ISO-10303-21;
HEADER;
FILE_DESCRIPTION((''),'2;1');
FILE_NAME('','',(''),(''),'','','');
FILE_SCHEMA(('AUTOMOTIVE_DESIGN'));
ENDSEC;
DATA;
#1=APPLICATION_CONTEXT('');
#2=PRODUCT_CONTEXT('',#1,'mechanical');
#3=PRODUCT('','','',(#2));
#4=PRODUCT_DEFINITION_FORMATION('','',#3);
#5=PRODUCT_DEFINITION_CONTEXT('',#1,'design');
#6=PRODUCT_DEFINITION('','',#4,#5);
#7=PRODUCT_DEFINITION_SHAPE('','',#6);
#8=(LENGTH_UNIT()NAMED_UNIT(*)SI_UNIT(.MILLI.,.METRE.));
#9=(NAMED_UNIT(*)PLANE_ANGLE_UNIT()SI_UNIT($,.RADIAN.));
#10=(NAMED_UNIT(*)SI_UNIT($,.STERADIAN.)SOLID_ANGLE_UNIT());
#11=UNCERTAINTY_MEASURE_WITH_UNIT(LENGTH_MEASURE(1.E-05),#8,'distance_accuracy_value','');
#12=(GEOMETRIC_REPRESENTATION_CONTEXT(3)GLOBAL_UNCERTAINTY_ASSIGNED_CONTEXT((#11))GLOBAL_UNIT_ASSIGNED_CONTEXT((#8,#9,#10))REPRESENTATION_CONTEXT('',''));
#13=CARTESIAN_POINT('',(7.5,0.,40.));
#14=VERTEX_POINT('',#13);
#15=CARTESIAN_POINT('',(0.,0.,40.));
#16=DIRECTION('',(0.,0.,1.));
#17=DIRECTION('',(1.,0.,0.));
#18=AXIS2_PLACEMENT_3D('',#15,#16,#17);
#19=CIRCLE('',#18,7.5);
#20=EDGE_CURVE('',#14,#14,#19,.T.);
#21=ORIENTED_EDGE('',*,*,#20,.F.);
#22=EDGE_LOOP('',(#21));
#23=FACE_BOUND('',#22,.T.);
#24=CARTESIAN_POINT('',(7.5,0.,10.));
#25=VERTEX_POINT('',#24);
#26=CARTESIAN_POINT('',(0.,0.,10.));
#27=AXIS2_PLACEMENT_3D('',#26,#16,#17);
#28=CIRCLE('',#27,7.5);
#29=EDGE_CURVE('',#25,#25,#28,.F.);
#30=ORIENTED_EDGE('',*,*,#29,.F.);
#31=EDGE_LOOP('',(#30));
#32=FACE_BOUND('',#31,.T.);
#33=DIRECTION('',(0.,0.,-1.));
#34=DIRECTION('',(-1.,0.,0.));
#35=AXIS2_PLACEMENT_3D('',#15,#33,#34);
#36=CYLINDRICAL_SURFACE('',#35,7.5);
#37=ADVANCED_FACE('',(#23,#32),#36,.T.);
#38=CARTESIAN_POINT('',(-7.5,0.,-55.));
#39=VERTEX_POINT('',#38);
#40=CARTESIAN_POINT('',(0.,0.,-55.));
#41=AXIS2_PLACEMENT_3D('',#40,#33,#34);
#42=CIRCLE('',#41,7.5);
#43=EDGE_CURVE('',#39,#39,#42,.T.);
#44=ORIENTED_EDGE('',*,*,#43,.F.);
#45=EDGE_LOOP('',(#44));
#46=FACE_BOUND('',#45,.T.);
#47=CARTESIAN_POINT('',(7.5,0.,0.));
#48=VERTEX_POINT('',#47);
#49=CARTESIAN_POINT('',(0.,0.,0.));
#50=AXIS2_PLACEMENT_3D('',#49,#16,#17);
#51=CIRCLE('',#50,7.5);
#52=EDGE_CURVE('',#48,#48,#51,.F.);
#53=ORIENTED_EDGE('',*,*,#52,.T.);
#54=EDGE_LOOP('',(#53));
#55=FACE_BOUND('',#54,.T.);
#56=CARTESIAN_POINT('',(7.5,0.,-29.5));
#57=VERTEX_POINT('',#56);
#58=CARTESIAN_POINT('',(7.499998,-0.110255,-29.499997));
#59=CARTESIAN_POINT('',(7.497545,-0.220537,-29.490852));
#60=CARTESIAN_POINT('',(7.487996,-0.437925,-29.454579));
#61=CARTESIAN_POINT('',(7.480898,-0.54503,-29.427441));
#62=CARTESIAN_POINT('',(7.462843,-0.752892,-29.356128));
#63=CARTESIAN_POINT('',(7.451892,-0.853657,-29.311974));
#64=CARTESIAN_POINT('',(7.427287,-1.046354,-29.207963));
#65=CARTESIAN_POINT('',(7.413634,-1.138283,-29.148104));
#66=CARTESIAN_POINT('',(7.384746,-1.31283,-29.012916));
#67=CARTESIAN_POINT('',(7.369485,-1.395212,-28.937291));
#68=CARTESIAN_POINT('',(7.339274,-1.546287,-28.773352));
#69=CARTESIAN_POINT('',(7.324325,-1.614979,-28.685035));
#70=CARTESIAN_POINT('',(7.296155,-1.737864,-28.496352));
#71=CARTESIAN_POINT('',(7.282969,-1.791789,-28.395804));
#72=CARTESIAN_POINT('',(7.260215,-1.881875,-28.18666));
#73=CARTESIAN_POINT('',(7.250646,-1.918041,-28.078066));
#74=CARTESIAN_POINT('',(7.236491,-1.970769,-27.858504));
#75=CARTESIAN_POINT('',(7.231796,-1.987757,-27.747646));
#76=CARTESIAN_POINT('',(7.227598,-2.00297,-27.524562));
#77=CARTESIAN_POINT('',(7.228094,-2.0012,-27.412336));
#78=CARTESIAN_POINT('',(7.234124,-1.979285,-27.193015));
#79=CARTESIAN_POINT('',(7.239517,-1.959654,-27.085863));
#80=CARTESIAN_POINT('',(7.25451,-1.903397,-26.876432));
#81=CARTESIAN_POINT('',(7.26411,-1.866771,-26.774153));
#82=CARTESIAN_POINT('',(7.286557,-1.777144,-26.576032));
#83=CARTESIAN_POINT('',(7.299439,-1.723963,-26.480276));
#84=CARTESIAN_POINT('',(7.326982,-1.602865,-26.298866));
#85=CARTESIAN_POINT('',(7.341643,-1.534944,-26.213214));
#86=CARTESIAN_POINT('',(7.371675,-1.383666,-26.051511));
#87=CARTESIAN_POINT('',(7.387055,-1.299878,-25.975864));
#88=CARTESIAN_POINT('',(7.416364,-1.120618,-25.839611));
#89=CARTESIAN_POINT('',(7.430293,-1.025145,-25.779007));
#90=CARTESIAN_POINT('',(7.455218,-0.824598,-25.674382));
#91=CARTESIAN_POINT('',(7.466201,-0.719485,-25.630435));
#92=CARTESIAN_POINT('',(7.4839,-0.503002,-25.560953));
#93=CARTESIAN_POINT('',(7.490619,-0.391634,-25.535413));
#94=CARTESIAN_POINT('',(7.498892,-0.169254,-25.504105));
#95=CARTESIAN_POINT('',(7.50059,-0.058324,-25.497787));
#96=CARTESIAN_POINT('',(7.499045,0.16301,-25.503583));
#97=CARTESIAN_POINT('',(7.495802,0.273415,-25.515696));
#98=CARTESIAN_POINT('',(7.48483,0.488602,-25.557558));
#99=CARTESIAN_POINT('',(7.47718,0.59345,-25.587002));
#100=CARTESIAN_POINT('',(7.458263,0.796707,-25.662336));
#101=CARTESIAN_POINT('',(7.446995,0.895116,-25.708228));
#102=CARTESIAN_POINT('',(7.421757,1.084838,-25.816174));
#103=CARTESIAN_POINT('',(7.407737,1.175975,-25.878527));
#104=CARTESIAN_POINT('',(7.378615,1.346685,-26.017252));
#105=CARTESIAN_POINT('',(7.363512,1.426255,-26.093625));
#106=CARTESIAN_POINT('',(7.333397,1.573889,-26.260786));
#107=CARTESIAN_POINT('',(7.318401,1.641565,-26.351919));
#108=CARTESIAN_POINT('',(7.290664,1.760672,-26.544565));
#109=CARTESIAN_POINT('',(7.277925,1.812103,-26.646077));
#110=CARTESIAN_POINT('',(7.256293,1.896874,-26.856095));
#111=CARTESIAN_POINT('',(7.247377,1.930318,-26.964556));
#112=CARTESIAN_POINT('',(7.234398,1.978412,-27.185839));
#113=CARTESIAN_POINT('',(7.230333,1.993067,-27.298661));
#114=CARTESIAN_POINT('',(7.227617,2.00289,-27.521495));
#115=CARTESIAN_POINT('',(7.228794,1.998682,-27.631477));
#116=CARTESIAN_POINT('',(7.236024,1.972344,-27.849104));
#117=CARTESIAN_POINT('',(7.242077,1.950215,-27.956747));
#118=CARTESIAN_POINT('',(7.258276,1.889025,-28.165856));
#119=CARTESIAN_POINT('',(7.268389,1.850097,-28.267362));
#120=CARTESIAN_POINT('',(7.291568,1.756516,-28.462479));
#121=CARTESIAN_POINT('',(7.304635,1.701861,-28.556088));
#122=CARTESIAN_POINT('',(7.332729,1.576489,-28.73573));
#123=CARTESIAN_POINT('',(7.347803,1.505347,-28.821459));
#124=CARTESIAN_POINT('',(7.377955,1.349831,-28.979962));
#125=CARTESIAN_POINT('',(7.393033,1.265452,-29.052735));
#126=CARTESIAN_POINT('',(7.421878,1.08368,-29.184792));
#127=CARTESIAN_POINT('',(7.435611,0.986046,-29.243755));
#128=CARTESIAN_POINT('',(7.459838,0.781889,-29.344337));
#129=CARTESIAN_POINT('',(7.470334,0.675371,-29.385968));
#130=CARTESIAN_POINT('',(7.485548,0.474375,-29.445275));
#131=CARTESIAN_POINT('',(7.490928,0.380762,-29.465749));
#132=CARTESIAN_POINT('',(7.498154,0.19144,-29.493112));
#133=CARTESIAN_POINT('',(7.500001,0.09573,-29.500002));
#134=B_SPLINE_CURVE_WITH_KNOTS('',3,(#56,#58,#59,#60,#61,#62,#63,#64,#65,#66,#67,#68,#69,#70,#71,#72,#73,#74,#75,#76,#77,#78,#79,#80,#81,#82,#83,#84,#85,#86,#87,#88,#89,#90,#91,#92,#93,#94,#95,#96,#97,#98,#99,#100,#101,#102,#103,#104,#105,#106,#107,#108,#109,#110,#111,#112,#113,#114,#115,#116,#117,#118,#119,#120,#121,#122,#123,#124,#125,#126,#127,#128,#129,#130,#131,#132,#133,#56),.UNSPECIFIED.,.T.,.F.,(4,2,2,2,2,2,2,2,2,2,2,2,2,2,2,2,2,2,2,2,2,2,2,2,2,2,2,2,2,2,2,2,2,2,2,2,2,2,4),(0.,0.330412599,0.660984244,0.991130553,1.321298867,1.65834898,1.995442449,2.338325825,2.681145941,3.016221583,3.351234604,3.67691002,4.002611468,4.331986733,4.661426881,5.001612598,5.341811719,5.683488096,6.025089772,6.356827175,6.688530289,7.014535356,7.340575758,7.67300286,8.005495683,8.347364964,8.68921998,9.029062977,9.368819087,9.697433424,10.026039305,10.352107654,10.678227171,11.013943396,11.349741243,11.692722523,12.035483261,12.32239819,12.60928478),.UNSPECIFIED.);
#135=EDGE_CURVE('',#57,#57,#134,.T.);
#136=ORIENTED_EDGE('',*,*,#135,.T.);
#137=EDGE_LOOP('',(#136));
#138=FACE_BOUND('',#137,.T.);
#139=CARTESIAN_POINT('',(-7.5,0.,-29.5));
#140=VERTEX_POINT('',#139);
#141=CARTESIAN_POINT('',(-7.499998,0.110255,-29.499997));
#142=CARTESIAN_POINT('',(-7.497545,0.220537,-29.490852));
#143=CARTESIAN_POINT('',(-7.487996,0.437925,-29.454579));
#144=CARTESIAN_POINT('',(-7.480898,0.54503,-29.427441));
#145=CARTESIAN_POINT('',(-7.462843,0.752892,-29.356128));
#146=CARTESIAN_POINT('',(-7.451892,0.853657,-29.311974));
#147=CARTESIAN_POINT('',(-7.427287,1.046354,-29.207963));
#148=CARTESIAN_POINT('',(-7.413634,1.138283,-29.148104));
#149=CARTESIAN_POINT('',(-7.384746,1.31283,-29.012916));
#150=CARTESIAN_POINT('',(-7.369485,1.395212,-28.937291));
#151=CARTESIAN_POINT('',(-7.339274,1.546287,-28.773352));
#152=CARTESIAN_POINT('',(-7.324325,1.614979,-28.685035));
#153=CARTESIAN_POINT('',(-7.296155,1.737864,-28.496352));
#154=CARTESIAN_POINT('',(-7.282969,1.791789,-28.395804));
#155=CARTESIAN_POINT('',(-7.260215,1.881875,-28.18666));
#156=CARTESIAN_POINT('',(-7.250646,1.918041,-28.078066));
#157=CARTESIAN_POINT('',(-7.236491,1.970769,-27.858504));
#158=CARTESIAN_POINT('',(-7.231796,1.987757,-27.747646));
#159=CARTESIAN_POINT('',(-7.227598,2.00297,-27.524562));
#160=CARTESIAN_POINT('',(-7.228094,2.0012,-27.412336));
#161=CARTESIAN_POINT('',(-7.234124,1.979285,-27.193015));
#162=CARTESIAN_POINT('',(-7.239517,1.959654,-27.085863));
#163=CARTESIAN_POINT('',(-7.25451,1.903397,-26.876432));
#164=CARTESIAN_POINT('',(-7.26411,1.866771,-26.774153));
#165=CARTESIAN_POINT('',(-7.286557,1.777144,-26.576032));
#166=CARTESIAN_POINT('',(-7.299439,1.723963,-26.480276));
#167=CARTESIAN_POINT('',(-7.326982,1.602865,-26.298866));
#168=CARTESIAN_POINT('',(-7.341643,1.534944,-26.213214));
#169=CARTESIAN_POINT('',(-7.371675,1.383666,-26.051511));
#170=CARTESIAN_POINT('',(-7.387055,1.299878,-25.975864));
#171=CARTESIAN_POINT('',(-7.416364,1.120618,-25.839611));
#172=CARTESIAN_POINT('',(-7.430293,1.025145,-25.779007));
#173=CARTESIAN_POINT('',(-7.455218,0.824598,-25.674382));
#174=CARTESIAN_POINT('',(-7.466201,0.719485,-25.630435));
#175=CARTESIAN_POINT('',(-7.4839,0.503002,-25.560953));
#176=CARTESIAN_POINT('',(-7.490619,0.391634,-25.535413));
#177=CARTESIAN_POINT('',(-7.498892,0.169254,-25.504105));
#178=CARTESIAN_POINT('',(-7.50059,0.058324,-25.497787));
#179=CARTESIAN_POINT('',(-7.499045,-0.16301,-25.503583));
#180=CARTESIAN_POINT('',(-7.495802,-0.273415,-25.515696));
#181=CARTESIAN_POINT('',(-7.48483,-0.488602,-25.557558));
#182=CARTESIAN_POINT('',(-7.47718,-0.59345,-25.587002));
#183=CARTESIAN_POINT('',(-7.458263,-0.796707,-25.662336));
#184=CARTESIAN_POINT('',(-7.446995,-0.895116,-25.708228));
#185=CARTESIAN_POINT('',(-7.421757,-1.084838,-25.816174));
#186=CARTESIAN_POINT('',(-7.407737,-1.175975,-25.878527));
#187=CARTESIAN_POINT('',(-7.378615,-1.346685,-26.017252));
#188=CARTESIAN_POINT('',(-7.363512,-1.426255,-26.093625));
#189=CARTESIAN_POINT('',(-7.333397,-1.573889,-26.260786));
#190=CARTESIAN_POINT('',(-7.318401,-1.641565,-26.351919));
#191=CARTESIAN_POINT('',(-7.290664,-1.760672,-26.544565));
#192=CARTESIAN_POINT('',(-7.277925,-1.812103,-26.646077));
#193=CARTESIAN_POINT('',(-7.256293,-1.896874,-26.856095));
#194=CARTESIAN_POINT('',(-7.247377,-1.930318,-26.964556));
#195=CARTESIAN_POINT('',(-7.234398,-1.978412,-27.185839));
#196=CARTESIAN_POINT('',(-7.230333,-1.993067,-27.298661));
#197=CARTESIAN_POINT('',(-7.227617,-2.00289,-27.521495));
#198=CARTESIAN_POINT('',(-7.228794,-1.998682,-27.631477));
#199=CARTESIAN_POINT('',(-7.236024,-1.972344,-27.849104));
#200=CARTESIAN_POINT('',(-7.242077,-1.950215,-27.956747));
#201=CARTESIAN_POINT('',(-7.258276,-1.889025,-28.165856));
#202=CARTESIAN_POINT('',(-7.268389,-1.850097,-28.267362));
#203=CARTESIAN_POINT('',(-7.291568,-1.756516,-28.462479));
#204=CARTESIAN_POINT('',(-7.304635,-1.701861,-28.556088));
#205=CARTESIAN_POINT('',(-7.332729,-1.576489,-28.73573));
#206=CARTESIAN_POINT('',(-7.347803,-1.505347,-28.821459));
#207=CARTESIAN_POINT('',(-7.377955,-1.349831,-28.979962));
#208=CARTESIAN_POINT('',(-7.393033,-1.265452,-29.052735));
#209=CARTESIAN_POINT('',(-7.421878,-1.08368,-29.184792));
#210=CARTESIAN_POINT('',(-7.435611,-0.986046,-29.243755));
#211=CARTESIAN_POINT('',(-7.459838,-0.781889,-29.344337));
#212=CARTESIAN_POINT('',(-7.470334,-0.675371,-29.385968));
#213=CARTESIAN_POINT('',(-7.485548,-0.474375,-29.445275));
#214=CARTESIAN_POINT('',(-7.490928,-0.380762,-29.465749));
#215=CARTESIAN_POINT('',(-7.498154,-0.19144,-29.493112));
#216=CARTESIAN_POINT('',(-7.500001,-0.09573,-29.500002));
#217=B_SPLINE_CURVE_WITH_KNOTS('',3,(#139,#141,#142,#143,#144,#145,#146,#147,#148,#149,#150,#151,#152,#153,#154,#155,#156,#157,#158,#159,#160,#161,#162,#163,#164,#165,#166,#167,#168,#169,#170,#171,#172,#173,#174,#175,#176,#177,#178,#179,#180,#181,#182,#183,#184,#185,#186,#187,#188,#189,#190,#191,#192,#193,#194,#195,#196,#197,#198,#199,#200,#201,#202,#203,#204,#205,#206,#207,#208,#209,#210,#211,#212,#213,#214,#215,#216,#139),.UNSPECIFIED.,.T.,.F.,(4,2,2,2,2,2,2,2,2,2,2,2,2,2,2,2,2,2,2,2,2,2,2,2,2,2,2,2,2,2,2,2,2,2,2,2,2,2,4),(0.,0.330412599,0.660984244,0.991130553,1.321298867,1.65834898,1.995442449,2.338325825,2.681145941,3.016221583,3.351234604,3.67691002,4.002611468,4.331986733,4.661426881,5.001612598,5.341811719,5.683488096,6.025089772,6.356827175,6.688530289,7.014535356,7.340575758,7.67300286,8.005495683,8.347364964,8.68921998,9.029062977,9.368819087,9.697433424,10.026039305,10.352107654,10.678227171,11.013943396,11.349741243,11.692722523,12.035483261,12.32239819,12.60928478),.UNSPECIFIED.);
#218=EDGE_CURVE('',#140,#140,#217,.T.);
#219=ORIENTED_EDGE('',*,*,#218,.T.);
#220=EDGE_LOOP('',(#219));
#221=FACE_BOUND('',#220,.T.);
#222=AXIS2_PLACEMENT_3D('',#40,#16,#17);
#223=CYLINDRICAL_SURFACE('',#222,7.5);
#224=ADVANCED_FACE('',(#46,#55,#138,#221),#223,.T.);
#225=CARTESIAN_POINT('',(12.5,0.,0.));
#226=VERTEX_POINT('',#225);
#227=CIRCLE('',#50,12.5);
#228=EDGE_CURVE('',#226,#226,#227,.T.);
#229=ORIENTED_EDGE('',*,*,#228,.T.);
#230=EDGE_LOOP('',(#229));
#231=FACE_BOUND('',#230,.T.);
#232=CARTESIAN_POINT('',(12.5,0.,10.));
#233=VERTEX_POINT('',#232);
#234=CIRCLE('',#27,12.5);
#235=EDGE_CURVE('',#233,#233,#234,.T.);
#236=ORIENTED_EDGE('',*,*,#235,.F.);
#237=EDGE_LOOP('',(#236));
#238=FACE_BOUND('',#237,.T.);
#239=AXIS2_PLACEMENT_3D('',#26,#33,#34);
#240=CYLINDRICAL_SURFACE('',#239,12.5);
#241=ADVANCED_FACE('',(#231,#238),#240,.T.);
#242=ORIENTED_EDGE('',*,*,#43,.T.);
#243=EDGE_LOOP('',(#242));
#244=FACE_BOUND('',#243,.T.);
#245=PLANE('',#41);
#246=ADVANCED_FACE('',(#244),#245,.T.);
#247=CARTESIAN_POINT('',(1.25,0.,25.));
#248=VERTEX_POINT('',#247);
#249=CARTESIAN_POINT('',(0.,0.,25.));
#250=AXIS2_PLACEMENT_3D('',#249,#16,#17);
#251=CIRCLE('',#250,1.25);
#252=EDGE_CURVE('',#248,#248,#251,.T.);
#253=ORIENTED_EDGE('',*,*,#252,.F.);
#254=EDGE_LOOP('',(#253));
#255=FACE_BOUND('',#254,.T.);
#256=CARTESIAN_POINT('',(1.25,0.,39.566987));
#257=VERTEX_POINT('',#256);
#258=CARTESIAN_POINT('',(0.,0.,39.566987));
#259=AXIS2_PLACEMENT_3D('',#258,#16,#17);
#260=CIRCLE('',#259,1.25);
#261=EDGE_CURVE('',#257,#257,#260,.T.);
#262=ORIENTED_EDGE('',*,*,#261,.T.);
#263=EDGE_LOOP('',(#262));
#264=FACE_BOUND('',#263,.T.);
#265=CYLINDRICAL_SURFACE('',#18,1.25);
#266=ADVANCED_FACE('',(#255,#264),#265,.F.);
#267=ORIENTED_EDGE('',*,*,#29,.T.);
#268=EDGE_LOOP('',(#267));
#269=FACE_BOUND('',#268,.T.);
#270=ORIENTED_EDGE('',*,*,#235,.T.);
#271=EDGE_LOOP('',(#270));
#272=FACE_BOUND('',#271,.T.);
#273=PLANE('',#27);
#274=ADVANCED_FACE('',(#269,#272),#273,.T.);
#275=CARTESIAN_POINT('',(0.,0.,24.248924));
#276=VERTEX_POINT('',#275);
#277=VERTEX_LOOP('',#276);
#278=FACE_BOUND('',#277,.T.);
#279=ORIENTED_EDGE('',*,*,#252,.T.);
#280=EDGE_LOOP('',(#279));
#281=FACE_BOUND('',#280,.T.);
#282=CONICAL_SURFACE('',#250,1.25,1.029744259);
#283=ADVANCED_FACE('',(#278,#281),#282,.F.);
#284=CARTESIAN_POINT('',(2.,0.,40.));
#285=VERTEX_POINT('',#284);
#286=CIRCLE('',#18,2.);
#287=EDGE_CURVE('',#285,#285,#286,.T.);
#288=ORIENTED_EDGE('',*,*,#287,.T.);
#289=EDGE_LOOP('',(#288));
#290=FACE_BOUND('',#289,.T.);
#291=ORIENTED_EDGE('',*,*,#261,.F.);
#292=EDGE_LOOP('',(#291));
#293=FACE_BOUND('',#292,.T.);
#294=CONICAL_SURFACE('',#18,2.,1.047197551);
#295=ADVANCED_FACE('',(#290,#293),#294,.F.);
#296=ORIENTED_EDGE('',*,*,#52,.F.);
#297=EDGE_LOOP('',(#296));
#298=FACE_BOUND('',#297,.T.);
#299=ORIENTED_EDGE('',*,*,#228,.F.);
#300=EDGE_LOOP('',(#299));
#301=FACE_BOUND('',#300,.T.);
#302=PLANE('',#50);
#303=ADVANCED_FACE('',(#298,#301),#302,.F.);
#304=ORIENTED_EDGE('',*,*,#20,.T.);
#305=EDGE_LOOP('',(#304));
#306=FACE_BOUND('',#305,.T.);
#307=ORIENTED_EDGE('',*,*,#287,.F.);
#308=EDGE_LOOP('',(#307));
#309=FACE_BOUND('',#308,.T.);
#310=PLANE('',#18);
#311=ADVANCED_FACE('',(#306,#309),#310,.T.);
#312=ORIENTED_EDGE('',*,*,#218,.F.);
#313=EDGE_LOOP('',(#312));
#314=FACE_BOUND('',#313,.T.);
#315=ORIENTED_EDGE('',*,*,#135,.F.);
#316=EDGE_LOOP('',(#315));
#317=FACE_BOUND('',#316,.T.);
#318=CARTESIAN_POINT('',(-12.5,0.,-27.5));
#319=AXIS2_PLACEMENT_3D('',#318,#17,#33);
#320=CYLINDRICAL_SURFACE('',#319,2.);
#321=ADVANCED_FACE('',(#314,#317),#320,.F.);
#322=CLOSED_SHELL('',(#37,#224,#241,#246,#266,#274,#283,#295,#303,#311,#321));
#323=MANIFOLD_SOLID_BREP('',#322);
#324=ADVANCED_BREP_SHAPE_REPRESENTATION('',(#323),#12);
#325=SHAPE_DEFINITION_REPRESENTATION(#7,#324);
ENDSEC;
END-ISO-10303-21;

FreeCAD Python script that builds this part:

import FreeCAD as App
import Part
import Sketcher
from FreeCAD import Vector

doc = App.newDocument("Part")
body = doc.addObject("PartDesign::Body", "Body")

sketch1 = body.newObject("Sketcher::SketchObject", "Sketch")
sketch1.AttachmentSupport = (doc.getObject("XY_Plane"), [""])
sketch1.MapMode = "FlatFace"
sketch1.addGeometry(Part.Circle(Vector(0, 0, 0), Vector(0, 0, 1), 12.5), False)
sketch1.addConstraint([
    Sketcher.Constraint("Coincident", 0, 3, -1, 1),
    Sketcher.Constraint("Diameter", 0, 25.0),
])
pad1 = body.newObject("PartDesign::Pad", "Pad")
pad1.Profile = sketch1
pad1.Length = 10

sketch2 = body.newObject("Sketcher::SketchObject", "Sketch001")
sketch2.AttachmentSupport = (doc.getObject("XY_Plane"), [""])
sketch2.MapMode = "FlatFace"
sketch2.addGeometry(Part.Circle(Vector(0, 0, 0), Vector(0, 0, 1), 7.5), False)
sketch2.addConstraint([
    Sketcher.Constraint("Coincident", 0, 3, -1, 1),
    Sketcher.Constraint("Diameter", 0, 15.0),
])
pad2 = body.newObject("PartDesign::Pad", "Pad001")
pad2.Profile = sketch2
pad2.Length = 40

sketch3 = body.newObject("Sketcher::SketchObject", "Sketch002")
sketch3.AttachmentSupport = (doc.getObject("XY_Plane"), [""])
sketch3.MapMode = "FlatFace"
sketch3.AttachmentOffset = App.Placement(Vector(0, 0, -55), App.Rotation())
sketch3.addGeometry(Part.Circle(Vector(0, 0, 0), Vector(0, 0, 1), 7.5), False)
sketch3.addConstraint([
    Sketcher.Constraint("Coincident", 0, 3, -1, 1),
    Sketcher.Constraint("Diameter", 0, 15.0),
])
pad3 = body.newObject("PartDesign::Pad", "Pad002")
pad3.Profile = sketch3
pad3.Length = 55

sketch4 = body.newObject("Sketcher::SketchObject", "Sketch003")
sketch4.AttachmentSupport = (doc.getObject("XY_Plane"), [""])
sketch4.MapMode = "FlatFace"
sketch4.AttachmentOffset = App.Placement(Vector(0, 0, 40), App.Rotation())
sketch4.addGeometry(Part.Circle(Vector(0, 0, 0), Vector(0, 0, 1), 1.25), False)
sketch4.addConstraint([
    Sketcher.Constraint("Coincident", 0, 3, -1, 1),
    Sketcher.Constraint("Diameter", 0, 2.5),
])
doc.recompute()
hole = body.newObject("PartDesign::Hole", "Hole")
hole.Profile = sketch4
hole.ThreadType = "None"
hole.Diameter = 2.5
hole.DepthType = "Dimension"
hole.Depth = 15
hole.DrillPoint = "Angled"
hole.DrillPointAngle = 118
hole.HoleCutType = "Countersink"
hole.HoleCutDiameter = 4
hole.HoleCutCountersinkAngle = 120

sketch5 = body.newObject("Sketcher::SketchObject", "Sketch004")
sketch5.AttachmentSupport = (doc.getObject("YZ_Plane"), [""])
sketch5.MapMode = "FlatFace"
sketch5.AttachmentOffset = App.Placement(Vector(0, 0, 7.5), App.Rotation())
sketch5.addGeometry(Part.Circle(Vector(0, -27.5, 0), Vector(0, 0, 1), 2), False)
sketch5.addConstraint([
    Sketcher.Constraint("PointOnObject", 0, 3, -2),
    Sketcher.Constraint("Diameter", 0, 4.0),
    Sketcher.Constraint("DistanceY", 0, 3, -1, 1, 27.5),
])
pocket1 = body.newObject("PartDesign::Pocket", "Pocket")
pocket1.Profile = sketch5
pocket1.Type = "ThroughAll"

doc.recompute()
